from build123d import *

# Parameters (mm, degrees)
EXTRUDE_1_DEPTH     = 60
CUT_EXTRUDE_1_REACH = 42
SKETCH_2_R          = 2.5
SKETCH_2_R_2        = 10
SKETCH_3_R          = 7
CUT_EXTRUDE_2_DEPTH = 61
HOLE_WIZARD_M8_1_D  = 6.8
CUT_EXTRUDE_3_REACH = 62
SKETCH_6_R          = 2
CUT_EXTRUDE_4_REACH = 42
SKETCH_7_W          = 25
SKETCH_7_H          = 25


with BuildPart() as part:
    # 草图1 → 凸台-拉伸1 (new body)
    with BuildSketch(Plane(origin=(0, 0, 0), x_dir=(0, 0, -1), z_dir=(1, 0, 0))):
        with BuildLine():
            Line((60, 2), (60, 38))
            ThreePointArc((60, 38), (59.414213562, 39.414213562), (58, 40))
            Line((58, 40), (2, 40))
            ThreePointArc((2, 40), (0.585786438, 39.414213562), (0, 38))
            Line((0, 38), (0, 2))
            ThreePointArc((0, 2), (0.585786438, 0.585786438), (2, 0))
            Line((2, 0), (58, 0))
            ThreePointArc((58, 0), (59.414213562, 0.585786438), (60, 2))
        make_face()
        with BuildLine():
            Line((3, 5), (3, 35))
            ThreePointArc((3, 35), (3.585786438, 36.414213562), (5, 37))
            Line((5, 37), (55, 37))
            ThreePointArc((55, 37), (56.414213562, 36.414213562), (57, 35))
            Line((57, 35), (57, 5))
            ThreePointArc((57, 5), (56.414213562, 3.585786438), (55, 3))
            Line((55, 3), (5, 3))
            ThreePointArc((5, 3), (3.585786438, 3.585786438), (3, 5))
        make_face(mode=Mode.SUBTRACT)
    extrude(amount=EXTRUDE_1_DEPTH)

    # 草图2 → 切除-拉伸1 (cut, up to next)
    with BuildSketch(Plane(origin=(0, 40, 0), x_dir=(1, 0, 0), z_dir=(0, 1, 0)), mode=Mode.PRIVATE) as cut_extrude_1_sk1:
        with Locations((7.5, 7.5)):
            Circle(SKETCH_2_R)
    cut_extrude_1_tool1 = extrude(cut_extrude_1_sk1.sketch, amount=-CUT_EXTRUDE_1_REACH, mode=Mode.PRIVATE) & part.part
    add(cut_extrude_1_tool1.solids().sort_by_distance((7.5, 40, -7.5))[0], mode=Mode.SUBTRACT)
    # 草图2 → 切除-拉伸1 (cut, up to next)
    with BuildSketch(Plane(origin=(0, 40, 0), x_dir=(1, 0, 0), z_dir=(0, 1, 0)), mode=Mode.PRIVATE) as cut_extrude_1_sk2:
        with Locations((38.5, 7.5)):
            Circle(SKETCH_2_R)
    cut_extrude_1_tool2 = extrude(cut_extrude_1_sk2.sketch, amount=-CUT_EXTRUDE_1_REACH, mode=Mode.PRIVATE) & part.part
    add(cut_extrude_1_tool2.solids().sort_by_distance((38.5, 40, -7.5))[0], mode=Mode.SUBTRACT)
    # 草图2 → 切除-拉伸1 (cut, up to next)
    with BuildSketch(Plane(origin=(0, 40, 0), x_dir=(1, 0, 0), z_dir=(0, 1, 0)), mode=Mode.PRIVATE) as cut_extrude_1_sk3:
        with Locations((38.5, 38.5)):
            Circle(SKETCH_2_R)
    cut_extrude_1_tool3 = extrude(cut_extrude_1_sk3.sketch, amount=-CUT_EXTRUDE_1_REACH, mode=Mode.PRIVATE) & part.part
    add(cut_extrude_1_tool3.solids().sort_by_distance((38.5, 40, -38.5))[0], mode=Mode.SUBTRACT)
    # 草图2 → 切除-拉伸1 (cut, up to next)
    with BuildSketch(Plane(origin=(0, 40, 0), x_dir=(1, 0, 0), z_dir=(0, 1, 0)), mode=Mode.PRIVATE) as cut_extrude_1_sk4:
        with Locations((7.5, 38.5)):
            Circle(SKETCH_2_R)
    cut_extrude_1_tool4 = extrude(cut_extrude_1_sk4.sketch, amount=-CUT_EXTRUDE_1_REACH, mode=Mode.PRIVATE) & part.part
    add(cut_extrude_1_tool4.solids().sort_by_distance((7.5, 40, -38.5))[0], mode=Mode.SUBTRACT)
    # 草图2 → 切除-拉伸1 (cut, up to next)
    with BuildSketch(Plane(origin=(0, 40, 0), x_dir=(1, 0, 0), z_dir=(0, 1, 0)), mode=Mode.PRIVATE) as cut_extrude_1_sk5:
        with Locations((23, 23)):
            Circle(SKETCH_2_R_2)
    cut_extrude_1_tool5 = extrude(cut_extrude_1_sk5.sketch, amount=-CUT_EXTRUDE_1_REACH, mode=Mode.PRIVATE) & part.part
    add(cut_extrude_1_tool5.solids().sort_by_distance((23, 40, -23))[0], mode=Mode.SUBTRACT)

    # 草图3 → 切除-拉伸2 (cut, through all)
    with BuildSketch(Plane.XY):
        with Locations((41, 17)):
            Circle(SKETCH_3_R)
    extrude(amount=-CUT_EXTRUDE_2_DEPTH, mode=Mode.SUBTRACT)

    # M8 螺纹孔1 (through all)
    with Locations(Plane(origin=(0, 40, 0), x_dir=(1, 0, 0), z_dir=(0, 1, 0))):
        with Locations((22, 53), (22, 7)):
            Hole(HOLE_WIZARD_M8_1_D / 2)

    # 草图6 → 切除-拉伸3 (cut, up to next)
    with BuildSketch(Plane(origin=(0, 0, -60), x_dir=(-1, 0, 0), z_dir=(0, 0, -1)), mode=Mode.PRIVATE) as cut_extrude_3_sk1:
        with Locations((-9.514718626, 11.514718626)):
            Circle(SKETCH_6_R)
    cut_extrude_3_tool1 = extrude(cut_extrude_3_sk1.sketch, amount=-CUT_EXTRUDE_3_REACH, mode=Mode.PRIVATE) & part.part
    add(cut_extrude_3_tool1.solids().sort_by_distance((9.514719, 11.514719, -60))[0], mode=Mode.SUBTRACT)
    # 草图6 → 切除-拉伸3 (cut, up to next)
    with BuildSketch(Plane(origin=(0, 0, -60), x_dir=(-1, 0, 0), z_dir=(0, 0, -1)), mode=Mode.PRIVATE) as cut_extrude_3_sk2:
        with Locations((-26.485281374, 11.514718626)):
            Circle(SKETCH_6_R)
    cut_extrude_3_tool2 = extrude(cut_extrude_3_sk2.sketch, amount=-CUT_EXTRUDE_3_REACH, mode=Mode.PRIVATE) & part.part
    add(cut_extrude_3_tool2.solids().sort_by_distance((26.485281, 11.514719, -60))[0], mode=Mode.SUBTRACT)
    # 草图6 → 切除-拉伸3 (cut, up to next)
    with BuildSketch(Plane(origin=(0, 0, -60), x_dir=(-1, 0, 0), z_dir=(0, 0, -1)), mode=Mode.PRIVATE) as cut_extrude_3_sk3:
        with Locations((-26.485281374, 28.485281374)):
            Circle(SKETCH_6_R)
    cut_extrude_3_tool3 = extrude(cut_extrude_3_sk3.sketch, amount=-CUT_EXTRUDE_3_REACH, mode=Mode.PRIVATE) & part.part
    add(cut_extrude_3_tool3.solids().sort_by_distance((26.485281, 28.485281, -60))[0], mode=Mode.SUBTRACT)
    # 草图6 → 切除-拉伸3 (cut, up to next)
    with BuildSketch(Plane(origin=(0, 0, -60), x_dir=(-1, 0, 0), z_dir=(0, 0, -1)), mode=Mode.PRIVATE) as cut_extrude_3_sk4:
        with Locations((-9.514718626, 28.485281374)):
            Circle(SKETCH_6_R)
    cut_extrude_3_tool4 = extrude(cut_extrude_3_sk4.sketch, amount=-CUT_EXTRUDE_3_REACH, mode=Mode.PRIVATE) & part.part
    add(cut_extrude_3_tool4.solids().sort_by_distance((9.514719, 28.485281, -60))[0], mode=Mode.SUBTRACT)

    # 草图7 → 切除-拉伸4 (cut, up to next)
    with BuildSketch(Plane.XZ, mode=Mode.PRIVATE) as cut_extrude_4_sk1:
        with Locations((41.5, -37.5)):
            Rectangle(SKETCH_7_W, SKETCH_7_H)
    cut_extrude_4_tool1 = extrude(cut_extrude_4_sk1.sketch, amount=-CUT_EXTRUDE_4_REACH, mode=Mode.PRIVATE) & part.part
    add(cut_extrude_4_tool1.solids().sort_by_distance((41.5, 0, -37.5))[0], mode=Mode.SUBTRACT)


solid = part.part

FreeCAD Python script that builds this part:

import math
import FreeCAD as App
import Part
import Sketcher


def add_polygon(sketch, points):
    """Adds a closed chain of lines whose ends are joined by coincident constraints."""
    first, n = sketch.GeometryCount, len(points)
    for a, b in zip(points, points[1:] + points[:1]):
        sketch.addGeometry(Part.LineSegment(App.Vector(*a, 0), App.Vector(*b, 0)), False)
    for i in range(n):
        sketch.addConstraint(Sketcher.Constraint("Coincident", first + i, 2, first + (i + 1) % n, 1))

doc = App.newDocument("Part")
body = doc.addObject("PartDesign::Body", "Body")

# Sketch on YZ plane
sketch1 = doc.addObject("Sketcher::SketchObject", "Sketch")
body.addObject(sketch1)
sketch1.AttachmentSupport = (doc.YZ_Plane, [""])
sketch1.MapMode = "FlatFace"
sketch1.addGeometry([
    Part.LineSegment(App.Vector(2, -60, 0), App.Vector(38, -60, 0)),  # 0
    Part.ArcOfCircle(Part.Circle(App.Vector(38, -58, 0), App.Vector(0, 0, 1), 2), math.radians(-90), math.radians(0)),  # 1
    Part.LineSegment(App.Vector(40, -58, 0), App.Vector(40, -2, 0)),  # 2
    Part.ArcOfCircle(Part.Circle(App.Vector(38, -2, 0), App.Vector(0, 0, 1), 2), math.radians(0), math.radians(90)),  # 3
    Part.LineSegment(App.Vector(38, 0, 0), App.Vector(2, 0, 0)),  # 4
    Part.ArcOfCircle(Part.Circle(App.Vector(2, -2, 0), App.Vector(0, 0, 1), 2), math.radians(90), math.radians(180)),  # 5
    Part.LineSegment(App.Vector(0, -2, 0), App.Vector(0, -58, 0)),  # 6
    Part.ArcOfCircle(Part.Circle(App.Vector(2, -58, 0), App.Vector(0, 0, 1), 2), math.radians(-180), math.radians(-90)),  # 7
    Part.ArcOfCircle(Part.Circle(App.Vector(5, -5, 0), App.Vector(0, 0, 1), 2), math.radians(90), math.radians(180)),  # 8
    Part.LineSegment(App.Vector(5, -3, 0), App.Vector(35, -3, 0)),  # 9
    Part.ArcOfCircle(Part.Circle(App.Vector(35, -5, 0), App.Vector(0, 0, 1), 2), math.radians(0), math.radians(90)),  # 10
    Part.LineSegment(App.Vector(37, -5, 0), App.Vector(37, -55, 0)),  # 11
    Part.ArcOfCircle(Part.Circle(App.Vector(35, -55, 0), App.Vector(0, 0, 1), 2), math.radians(-90), math.radians(0)),  # 12
    Part.LineSegment(App.Vector(35, -57, 0), App.Vector(5, -57, 0)),  # 13
    Part.ArcOfCircle(Part.Circle(App.Vector(5, -55, 0), App.Vector(0, 0, 1), 2), math.radians(-180), math.radians(-90)),  # 14
    Part.LineSegment(App.Vector(3, -55, 0), App.Vector(3, -5, 0)),  # 15
], False)
sketch1.addConstraint([
    Sketcher.Constraint("Tangent", 0, 2, 1, 1),
    Sketcher.Constraint("Tangent", 1, 2, 2, 1),
    Sketcher.Constraint("Tangent", 2, 2, 3, 1),
    Sketcher.Constraint("Tangent", 3, 2, 4, 1),
    Sketcher.Constraint("Tangent", 4, 2, 5, 1),
    Sketcher.Constraint("Tangent", 5, 2, 6, 1),
    Sketcher.Constraint("Tangent", 6, 2, 7, 1),
    Sketcher.Constraint("Tangent", 7, 2, 0, 1),
    Sketcher.Constraint("Tangent", 8, 1, 9, 1),
    Sketcher.Constraint("Tangent", 9, 2, 10, 2),
    Sketcher.Constraint("Tangent", 10, 1, 11, 1),
    Sketcher.Constraint("Tangent", 11, 2, 12, 2),
    Sketcher.Constraint("Tangent", 12, 1, 13, 1),
    Sketcher.Constraint("Tangent", 13, 2, 14, 2),
    Sketcher.Constraint("Tangent", 14, 1, 15, 1),
    Sketcher.Constraint("Tangent", 15, 2, 8, 2),
    Sketcher.Constraint("Horizontal", 0),
    Sketcher.Constraint("Vertical", 2),
    Sketcher.Constraint("Horizontal", 4),
    Sketcher.Constraint("Vertical", 6),
    Sketcher.Constraint("Horizontal", 9),
    Sketcher.Constraint("Vertical", 11),
    Sketcher.Constraint("Horizontal", 13),
    Sketcher.Constraint("Vertical", 15),
    Sketcher.Constraint("Equal", 1, 3),
    Sketcher.Constraint("Equal", 3, 5),
    Sketcher.Constraint("Equal", 5, 7),
    Sketcher.Constraint("Equal", 7, 8),
    Sketcher.Constraint("Equal", 8, 10),
    Sketcher.Constraint("Equal", 10, 12),
    Sketcher.Constraint("Equal", 12, 14),
    Sketcher.Constraint("PointOnObject", 3, 2, -1),
    Sketcher.Constraint("PointOnObject", 5, 2, -2),
    Sketcher.Constraint("Radius", 1, 2.0),
    Sketcher.Constraint("DistanceX", 0, 1, 0, 2, 36.0),
    Sketcher.Constraint("DistanceX", 9, 1, 9, 2, 30.0),
    Sketcher.Constraint("DistanceY", 2, 1, 2, 2, 56.0),
    Sketcher.Constraint("DistanceY", 11, 2, 11, 1, 50.0),
    Sketcher.Constraint("DistanceX", -1, 1, 8, 3, 5.0),
    Sketcher.Constraint("DistanceY", 8, 3, -1, 1, 5.0),
])
pad1 = doc.addObject("PartDesign::Pad", "Pad")
body.addObject(pad1)
pad1.Profile = sketch1
pad1.Length = 60

# Sketch on XZ plane
sketch2 = doc.addObject("Sketcher::SketchObject", "Sketch001")
body.addObject(sketch2)
sketch2.AttachmentSupport = (doc.XZ_Plane, [""])
sketch2.MapMode = "FlatFace"
sketch2.AttachmentOffset = App.Placement(App.Vector(0, 0, -40), App.Rotation())
sketch2.addGeometry(Part.Circle(App.Vector(7.5, -7.5, 0), App.Vector(0, 0, 1), 2.5), False)
sketch2.addConstraint([
    Sketcher.Constraint("Diameter", 0, 5.0),
    Sketcher.Constraint("DistanceX", -1, 1, 0, 3, 7.5),
    Sketcher.Constraint("DistanceY", 0, 3, -1, 1, 7.5),
])
pocket1 = doc.addObject("PartDesign::Pocket", "Pocket")
body.addObject(pocket1)
pocket1.Profile = sketch2
pocket1.Type = "UpToFirst"
pocket1.Reversed = True

# Sketch on XZ plane
sketch3 = doc.addObject("Sketcher::SketchObject", "Sketch002")
body.addObject(sketch3)
sketch3.AttachmentSupport = (doc.XZ_Plane, [""])
sketch3.MapMode = "FlatFace"
sketch3.AttachmentOffset = App.Placement(App.Vector(0, 0, -40), App.Rotation())
sketch3.addGeometry(Part.Circle(App.Vector(38.5, -7.5, 0), App.Vector(0, 0, 1), 2.5), False)
sketch3.addConstraint([
    Sketcher.Constraint("Diameter", 0, 5.0),
    Sketcher.Constraint("DistanceX", -1, 1, 0, 3, 38.5),
    Sketcher.Constraint("DistanceY", 0, 3, -1, 1, 7.5),
])
pocket2 = doc.addObject("PartDesign::Pocket", "Pocket001")
body.addObject(pocket2)
pocket2.Profile = sketch3
pocket2.Type = "UpToFirst"
pocket2.Reversed = True

# Sketch on XZ plane
sketch4 = doc.addObject("Sketcher::SketchObject", "Sketch003")
body.addObject(sketch4)
sketch4.AttachmentSupport = (doc.XZ_Plane, [""])
sketch4.MapMode = "FlatFace"
sketch4.AttachmentOffset = App.Placement(App.Vector(0, 0, -40), App.Rotation())
sketch4.addGeometry(Part.Circle(App.Vector(38.5, -38.5, 0), App.Vector(0, 0, 1), 2.5), False)
sketch4.addConstraint([
    Sketcher.Constraint("Diameter", 0, 5.0),
    Sketcher.Constraint("DistanceX", -1, 1, 0, 3, 38.5),
    Sketcher.Constraint("DistanceY", 0, 3, -1, 1, 38.5),
])
pocket3 = doc.addObject("PartDesign::Pocket", "Pocket002")
body.addObject(pocket3)
pocket3.Profile = sketch4
pocket3.Type = "UpToFirst"
pocket3.Reversed = True

# Sketch on XZ plane
sketch5 = doc.addObject("Sketcher::SketchObject", "Sketch004")
body.addObject(sketch5)
sketch5.AttachmentSupport = (doc.XZ_Plane, [""])
sketch5.MapMode = "FlatFace"
sketch5.AttachmentOffset = App.Placement(App.Vector(0, 0, -40), App.Rotation())
sketch5.addGeometry(Part.Circle(App.Vector(7.5, -38.5, 0), App.Vector(0, 0, 1), 2.5), False)
sketch5.addConstraint([
    Sketcher.Constraint("Diameter", 0, 5.0),
    Sketcher.Constraint("DistanceX", -1, 1, 0, 3, 7.5),
    Sketcher.Constraint("DistanceY", 0, 3, -1, 1, 38.5),
])
pocket4 = doc.addObject("PartDesign::Pocket", "Pocket003")
body.addObject(pocket4)
pocket4.Profile = sketch5
pocket4.Type = "UpToFirst"
pocket4.Reversed = True

# Sketch on XZ plane
sketch6 = doc.addObject("Sketcher::SketchObject", "Sketch005")
body.addObject(sketch6)
sketch6.AttachmentSupport = (doc.XZ_Plane, [""])
sketch6.MapMode = "FlatFace"
sketch6.AttachmentOffset = App.Placement(App.Vector(0, 0, -40), App.Rotation())
sketch6.addGeometry(Part.Circle(App.Vector(23, -23, 0), App.Vector(0, 0, 1), 10), False)
sketch6.addConstraint([
    Sketcher.Constraint("Diameter", 0, 20.0),
    Sketcher.Constraint("DistanceX", -1, 1, 0, 3, 23.0),
    Sketcher.Constraint("DistanceY", 0, 3, -1, 1, 23.0),
])
pocket5 = doc.addObject("PartDesign::Pocket", "Pocket004")
body.addObject(pocket5)
pocket5.Profile = sketch6
pocket5.Type = "UpToFirst"
pocket5.Reversed = True

# Sketch on XY plane
sketch7 = doc.addObject("Sketcher::SketchObject", "Sketch006")
body.addObject(sketch7)
sketch7.AttachmentSupport = (doc.XY_Plane, [""])
sketch7.MapMode = "FlatFace"
sketch7.addGeometry(Part.Circle(App.Vector(41, 17, 0), App.Vector(0, 0, 1), 7), False)
sketch7.addConstraint([
    Sketcher.Constraint("Diameter", 0, 14.0),
    Sketcher.Constraint("DistanceX", -1, 1, 0, 3, 41.0),
    Sketcher.Constraint("DistanceY", -1, 1, 0, 3, 17.0),
])
pocket6 = doc.addObject("PartDesign::Pocket", "Pocket005")
body.addObject(pocket6)
pocket6.Profile = sketch7
pocket6.Type = "ThroughAll"

# Sketch on XZ plane
sketch8 = doc.addObject("Sketcher::SketchObject", "Sketch007")
body.addObject(sketch8)
sketch8.AttachmentSupport = (doc.XZ_Plane, [""])
sketch8.MapMode = "FlatFace"
sketch8.AttachmentOffset = App.Placement(App.Vector(0, 0, -40), App.Rotation())
sketch8.addGeometry([
    Part.Circle(App.Vector(22, -53, 0), App.Vector(0, 0, 1), 3.4),
    Part.Circle(App.Vector(22, -7, 0), App.Vector(0, 0, 1), 3.4),
], False)
sketch8.addConstraint([
    Sketcher.Constraint("Equal", 0, 1),
    Sketcher.Constraint("Vertical", 0, 3, 1, 3),
    Sketcher.Constraint("Diameter", 0, 6.8),
    Sketcher.Constraint("DistanceX", -1, 1, 0, 3, 22.0),
    Sketcher.Constraint("DistanceY", 0, 3, -1, 1, 53.0),
    Sketcher.Constraint("DistanceY", 1, 3, -1, 1, 7.0),
])
doc.recompute()
hole = doc.addObject("PartDesign::Hole", "Hole")
body.addObject(hole)
hole.Profile = sketch8
hole.ThreadType = "None"
hole.Diameter = 6.8
hole.DepthType = "ThroughAll"
hole.Reversed = True

# Sketch on XY plane
sketch9 = doc.addObject("Sketcher::SketchObject", "Sketch008")
body.addObject(sketch9)
sketch9.AttachmentSupport = (doc.XY_Plane, [""])
sketch9.MapMode = "FlatFace"
sketch9.AttachmentOffset = App.Placement(App.Vector(0, 0, -60), App.Rotation())
sketch9.addGeometry(Part.Circle(App.Vector(9.5, 11.5, 0), App.Vector(0, 0, 1), 2), False)
sketch9.addConstraint([
    Sketcher.Constraint("Diameter", 0, 4.0),
    Sketcher.Constraint("DistanceX", -1, 1, 0, 3, 9.514719),
    Sketcher.Constraint("DistanceY", -1, 1, 0, 3, 11.514719),
])
pocket7 = doc.addObject("PartDesign::Pocket", "Pocket006")
body.addObject(pocket7)
pocket7.Profile = sketch9
pocket7.Type = "UpToFirst"
pocket7.Reversed = True

# Sketch on XY plane
sketch10 = doc.addObject("Sketcher::SketchObject", "Sketch009")
body.addObject(sketch10)
sketch10.AttachmentSupport = (doc.XY_Plane, [""])
sketch10.MapMode = "FlatFace"
sketch10.AttachmentOffset = App.Placement(App.Vector(0, 0, -60), App.Rotation())
sketch10.addGeometry(Part.Circle(App.Vector(26.5, 11.5, 0), App.Vector(0, 0, 1), 2), False)
sketch10.addConstraint([
    Sketcher.Constraint("Diameter", 0, 4.0),
    Sketcher.Constraint("DistanceX", -1, 1, 0, 3, 26.485281),
    Sketcher.Constraint("DistanceY", -1, 1, 0, 3, 11.514719),
])
pocket8 = doc.addObject("PartDesign::Pocket", "Pocket007")
body.addObject(pocket8)
pocket8.Profile = sketch10
pocket8.Type = "UpToFirst"
pocket8.Reversed = True

# Sketch on XY plane
sketch11 = doc.addObject("Sketcher::SketchObject", "Sketch010")
body.addObject(sketch11)
sketch11.AttachmentSupport = (doc.XY_Plane, [""])
sketch11.MapMode = "FlatFace"
sketch11.AttachmentOffset = App.Placement(App.Vector(0, 0, -60), App.Rotation())
sketch11.addGeometry(Part.Circle(App.Vector(26.5, 28.5, 0), App.Vector(0, 0, 1), 2), False)
sketch11.addConstraint([
    Sketcher.Constraint("Diameter", 0, 4.0),
    Sketcher.Constraint("DistanceX", -1, 1, 0, 3, 26.485281),
    Sketcher.Constraint("DistanceY", -1, 1, 0, 3, 28.485281),
])
pocket9 = doc.addObject("PartDesign::Pocket", "Pocket008")
body.addObject(pocket9)
pocket9.Profile = sketch11
pocket9.Type = "UpToFirst"
pocket9.Reversed = True

# Sketch on XY plane
sketch12 = doc.addObject("Sketcher::SketchObject", "Sketch011")
body.addObject(sketch12)
sketch12.AttachmentSupport = (doc.XY_Plane, [""])
sketch12.MapMode = "FlatFace"
sketch12.AttachmentOffset = App.Placement(App.Vector(0, 0, -60), App.Rotation())
sketch12.addGeometry(Part.Circle(App.Vector(9.5, 28.5, 0), App.Vector(0, 0, 1), 2), False)
sketch12.addConstraint([
    Sketcher.Constraint("Diameter", 0, 4.0),
    Sketcher.Constraint("DistanceX", -1, 1, 0, 3, 9.514719),
    Sketcher.Constraint("DistanceY", -1, 1, 0, 3, 28.485281),
])
pocket10 = doc.addObject("PartDesign::Pocket", "Pocket009")
body.addObject(pocket10)
pocket10.Profile = sketch12
pocket10.Type = "UpToFirst"
pocket10.Reversed = True

# Sketch on XZ plane
sketch13 = doc.addObject("Sketcher::SketchObject", "Sketch012")
body.addObject(sketch13)
sketch13.AttachmentSupport = (doc.XZ_Plane, [""])
sketch13.MapMode = "FlatFace"
add_polygon(sketch13, [(29, -25), (29, -50), (54, -50), (54, -25)])  # lines 0-3
sketch13.addConstraint([
    Sketcher.Constraint("Vertical", 0),
    Sketcher.Constraint("Horizontal", 1),
    Sketcher.Constraint("Vertical", 2),
    Sketcher.Constraint("Horizontal", 3),
    Sketcher.Constraint("Equal", 3, 0),
    Sketcher.Constraint("DistanceX", 1, 1, 1, 2, 25.0),
    Sketcher.Constraint("DistanceX", -1, 1, 0, 2, 29.0),
    Sketcher.Constraint("DistanceY", 0, 2, -1, 1, 50.0),
])
pocket11 = doc.addObject("PartDesign::Pocket", "Pocket010")
body.addObject(pocket11)
pocket11.Profile = sketch13
pocket11.Type = "UpToFirst"

doc.recompute()
